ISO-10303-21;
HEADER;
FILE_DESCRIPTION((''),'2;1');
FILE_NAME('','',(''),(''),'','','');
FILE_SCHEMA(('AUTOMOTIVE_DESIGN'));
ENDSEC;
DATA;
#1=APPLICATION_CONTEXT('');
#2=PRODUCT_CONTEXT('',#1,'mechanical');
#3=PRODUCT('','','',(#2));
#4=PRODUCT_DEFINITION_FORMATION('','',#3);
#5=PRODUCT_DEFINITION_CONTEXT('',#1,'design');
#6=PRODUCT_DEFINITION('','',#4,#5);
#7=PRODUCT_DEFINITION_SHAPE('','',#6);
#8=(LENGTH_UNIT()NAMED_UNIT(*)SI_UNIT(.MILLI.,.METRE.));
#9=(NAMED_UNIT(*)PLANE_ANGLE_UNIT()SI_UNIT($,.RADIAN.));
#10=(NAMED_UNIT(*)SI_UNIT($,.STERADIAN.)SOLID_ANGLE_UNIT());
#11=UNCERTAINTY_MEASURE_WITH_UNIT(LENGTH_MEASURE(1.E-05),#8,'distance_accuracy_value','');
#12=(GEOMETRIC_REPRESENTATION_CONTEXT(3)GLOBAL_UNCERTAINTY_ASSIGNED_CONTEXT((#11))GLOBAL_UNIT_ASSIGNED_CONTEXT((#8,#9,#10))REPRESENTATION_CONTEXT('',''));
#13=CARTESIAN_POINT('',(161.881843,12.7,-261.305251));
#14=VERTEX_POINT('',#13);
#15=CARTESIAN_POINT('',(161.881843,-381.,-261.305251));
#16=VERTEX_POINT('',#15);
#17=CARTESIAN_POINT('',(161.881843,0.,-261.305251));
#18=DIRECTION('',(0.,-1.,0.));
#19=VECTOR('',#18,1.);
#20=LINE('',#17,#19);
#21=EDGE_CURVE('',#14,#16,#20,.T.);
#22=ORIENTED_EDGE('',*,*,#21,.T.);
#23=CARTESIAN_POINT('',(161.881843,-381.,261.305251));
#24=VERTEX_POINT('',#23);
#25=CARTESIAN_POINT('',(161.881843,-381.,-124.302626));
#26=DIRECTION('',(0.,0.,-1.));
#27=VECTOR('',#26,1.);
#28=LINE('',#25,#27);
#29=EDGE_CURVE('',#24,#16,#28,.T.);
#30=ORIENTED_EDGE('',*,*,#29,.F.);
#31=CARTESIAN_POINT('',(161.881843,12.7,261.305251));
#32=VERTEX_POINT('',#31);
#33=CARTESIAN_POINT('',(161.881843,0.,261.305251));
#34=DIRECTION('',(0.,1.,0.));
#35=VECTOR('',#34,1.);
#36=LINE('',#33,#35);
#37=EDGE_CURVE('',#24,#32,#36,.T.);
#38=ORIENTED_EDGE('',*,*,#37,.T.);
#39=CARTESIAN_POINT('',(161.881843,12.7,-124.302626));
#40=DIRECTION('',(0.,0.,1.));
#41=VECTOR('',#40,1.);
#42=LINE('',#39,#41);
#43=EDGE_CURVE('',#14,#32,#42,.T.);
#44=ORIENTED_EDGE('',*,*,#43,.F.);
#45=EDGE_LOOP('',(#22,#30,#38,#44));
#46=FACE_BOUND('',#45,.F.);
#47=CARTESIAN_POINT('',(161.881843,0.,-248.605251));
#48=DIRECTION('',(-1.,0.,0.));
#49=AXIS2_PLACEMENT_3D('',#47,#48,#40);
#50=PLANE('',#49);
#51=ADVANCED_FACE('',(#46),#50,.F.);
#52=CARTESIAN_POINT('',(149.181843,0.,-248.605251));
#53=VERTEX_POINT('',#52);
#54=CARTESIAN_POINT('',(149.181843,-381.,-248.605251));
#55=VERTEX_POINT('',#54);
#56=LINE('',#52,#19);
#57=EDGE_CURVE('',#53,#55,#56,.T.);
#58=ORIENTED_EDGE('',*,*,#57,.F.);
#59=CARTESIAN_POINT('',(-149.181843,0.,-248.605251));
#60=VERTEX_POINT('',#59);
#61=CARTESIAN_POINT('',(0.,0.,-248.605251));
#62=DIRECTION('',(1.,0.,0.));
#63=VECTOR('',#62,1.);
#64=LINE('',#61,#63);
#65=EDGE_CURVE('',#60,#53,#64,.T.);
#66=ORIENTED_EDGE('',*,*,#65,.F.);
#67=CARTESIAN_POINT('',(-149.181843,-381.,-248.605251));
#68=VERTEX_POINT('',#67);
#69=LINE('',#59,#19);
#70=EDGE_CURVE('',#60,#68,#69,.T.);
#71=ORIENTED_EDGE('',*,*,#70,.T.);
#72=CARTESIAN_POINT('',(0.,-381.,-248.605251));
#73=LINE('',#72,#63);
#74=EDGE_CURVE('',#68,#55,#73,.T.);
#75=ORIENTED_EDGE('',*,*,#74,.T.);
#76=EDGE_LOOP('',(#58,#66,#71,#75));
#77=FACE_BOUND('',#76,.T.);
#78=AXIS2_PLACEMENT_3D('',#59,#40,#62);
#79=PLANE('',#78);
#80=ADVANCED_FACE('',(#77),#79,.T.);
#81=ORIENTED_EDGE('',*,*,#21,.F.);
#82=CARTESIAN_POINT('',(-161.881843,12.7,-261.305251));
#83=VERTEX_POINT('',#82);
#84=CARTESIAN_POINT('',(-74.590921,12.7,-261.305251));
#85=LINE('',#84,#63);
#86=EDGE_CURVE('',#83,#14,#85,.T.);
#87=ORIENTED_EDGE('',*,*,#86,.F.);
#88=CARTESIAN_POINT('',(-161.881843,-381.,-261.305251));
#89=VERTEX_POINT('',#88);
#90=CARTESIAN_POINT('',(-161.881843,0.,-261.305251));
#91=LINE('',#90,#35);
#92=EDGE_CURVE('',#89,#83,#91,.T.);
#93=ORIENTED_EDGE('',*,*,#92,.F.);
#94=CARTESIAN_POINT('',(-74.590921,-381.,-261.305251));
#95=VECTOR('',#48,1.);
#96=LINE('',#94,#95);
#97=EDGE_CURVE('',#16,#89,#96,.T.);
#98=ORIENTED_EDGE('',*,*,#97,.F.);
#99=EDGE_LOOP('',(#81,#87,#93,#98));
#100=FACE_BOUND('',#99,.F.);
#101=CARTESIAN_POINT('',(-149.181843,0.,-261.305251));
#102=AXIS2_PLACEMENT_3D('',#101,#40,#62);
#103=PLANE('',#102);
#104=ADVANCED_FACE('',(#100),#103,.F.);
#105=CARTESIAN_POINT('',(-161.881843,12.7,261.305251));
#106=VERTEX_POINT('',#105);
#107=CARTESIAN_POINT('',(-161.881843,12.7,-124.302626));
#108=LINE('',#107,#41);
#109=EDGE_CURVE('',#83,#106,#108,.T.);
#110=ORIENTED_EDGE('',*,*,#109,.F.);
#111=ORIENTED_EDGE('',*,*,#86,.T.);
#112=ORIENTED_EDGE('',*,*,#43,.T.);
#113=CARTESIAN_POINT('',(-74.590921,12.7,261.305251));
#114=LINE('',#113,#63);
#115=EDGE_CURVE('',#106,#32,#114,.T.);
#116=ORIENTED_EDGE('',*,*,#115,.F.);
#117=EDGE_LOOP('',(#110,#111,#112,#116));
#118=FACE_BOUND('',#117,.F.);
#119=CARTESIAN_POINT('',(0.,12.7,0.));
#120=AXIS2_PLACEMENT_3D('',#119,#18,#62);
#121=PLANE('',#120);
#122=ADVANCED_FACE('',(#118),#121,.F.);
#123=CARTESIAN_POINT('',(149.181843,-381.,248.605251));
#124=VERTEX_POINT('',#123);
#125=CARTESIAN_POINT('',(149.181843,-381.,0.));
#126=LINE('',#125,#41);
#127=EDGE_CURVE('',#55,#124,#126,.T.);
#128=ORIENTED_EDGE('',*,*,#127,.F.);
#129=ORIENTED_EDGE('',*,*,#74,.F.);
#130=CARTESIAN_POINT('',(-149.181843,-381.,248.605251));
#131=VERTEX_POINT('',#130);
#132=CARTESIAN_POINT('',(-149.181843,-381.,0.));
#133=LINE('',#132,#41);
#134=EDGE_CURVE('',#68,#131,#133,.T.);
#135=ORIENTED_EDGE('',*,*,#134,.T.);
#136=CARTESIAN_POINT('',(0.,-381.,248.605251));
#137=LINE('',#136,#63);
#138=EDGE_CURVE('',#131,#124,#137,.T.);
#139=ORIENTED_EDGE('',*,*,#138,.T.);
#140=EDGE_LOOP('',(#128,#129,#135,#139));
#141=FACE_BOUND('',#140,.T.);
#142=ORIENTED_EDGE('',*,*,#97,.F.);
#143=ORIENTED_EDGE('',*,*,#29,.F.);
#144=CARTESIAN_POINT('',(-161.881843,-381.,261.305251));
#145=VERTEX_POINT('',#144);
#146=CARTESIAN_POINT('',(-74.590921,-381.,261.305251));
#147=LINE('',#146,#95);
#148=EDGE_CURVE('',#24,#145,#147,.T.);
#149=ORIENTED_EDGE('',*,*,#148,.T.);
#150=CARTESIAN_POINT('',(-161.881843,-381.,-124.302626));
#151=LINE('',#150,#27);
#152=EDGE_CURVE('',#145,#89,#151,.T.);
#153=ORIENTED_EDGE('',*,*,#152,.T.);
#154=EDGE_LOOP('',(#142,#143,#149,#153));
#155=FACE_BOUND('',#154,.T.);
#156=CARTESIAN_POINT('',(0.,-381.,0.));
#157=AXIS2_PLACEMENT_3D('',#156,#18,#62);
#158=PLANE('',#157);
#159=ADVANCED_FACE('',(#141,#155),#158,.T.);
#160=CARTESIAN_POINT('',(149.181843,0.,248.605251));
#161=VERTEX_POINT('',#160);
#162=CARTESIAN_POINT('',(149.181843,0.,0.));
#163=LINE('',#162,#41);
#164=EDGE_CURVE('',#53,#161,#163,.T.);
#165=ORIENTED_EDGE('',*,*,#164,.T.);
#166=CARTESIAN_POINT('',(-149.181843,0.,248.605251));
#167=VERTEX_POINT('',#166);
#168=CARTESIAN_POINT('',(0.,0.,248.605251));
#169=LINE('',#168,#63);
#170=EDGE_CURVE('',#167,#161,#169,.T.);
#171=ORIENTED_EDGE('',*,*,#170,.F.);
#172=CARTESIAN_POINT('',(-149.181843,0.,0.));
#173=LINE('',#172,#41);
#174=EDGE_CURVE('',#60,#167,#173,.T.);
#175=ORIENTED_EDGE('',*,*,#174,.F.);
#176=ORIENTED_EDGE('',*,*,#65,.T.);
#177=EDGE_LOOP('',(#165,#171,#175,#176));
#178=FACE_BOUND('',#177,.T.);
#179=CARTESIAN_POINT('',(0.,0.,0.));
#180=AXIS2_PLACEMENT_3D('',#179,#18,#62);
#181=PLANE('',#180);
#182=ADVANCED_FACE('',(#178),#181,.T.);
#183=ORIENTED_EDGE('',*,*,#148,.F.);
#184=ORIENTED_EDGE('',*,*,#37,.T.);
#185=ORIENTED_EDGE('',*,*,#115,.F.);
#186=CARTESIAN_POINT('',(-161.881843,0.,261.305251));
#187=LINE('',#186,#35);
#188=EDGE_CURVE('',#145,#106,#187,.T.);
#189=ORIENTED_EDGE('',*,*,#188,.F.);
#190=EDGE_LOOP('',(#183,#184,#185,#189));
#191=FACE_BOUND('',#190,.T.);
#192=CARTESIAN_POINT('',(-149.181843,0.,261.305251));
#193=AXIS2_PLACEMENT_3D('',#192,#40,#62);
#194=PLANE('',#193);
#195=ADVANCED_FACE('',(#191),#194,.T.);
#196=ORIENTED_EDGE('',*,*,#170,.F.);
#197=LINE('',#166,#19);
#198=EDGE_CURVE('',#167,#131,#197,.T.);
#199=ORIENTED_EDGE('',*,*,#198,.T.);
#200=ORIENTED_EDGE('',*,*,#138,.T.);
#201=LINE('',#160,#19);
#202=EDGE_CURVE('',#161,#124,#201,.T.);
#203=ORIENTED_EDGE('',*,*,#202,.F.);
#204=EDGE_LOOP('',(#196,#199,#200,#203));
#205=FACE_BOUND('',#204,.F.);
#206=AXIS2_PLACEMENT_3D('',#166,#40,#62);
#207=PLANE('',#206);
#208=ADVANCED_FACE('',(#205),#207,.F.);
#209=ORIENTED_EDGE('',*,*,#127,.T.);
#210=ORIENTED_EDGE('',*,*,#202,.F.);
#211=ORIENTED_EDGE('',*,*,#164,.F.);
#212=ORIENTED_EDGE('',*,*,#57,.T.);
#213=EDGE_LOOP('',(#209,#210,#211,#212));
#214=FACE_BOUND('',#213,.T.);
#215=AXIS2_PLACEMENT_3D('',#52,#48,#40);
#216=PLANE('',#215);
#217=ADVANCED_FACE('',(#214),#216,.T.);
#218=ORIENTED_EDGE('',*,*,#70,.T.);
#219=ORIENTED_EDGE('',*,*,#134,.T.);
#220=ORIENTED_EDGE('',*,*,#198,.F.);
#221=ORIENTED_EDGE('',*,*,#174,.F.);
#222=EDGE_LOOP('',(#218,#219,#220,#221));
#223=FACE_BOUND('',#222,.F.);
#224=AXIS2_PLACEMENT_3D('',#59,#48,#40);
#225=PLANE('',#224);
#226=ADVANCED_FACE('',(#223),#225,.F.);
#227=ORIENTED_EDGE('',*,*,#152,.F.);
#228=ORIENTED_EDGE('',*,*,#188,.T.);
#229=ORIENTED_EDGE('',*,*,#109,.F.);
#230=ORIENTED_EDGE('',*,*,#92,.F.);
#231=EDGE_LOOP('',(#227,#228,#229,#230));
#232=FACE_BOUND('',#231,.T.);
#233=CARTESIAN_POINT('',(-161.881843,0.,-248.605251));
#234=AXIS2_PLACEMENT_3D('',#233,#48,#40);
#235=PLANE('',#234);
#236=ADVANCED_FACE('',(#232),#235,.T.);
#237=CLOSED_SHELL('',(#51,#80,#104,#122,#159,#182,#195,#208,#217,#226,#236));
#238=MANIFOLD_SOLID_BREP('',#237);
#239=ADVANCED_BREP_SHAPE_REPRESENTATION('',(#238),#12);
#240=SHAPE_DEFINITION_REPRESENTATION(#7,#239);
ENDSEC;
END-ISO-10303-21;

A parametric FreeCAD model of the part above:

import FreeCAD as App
import Part
import Sketcher

V = App.Vector
Q = App.Units.Quantity


def faces_at(feature, points):
    """Names of the faces that lie closest to the given points."""
    faces = feature.Shape.Faces
    near = lambda p: min(range(len(faces)), key=lambda i: faces[i].distToShape(Part.Vertex(*p))[0])
    return sorted({f"Face{near(p) + 1}" for p in points})

doc = App.newDocument("Part")
body = doc.addObject("PartDesign::Body", "Body")

sketch1 = body.newObject("Sketcher::SketchObject", "Sketch")
sketch1.AttachmentSupport = (doc.getObject("XZ_Plane"), [""])
sketch1.MapMode = "FlatFace"
sketch1.addGeometry([
    Part.LineSegment(V(-149, 249, 0), V(-149, -249, 0)),
    Part.LineSegment(V(-149, -249, 0), V(149, -249, 0)),
    Part.LineSegment(V(149, -249, 0), V(149, 249, 0)),
    Part.LineSegment(V(149, 249, 0), V(-149, 249, 0)),
], False)
sketch1.addConstraint([
    Sketcher.Constraint("Coincident", 0, 2, 1, 1),
    Sketcher.Constraint("Coincident", 1, 2, 2, 1),
    Sketcher.Constraint("Coincident", 2, 2, 3, 1),
    Sketcher.Constraint("Coincident", 3, 2, 0, 1),
    Sketcher.Constraint("Vertical", 0),
    Sketcher.Constraint("Horizontal", 1),
    Sketcher.Constraint("Vertical", 2),
    Sketcher.Constraint("Horizontal", 3),
    Sketcher.Constraint("Symmetric", 0, 2, 2, 2, -1, 1),
    Sketcher.Constraint("DistanceX", 1, 1, 1, 2, Q("298.363686 mm")),
    Sketcher.Constraint("DistanceY", 0, 2, 0, 1, Q("497.210503 mm")),
])
pad1 = body.newObject("PartDesign::Pad", "Pad")
pad1.Profile = sketch1
pad1.Length = Q("15 in")
doc.recompute()

thickness = body.newObject("PartDesign::Thickness", "Thickness")
thickness.Base = (pad1, faces_at(pad1, [(0, -381, 0)]))
thickness.Value = Q("0.5 in")
thickness.Reversed = False
thickness.Join = "Intersection"

doc.recompute()
